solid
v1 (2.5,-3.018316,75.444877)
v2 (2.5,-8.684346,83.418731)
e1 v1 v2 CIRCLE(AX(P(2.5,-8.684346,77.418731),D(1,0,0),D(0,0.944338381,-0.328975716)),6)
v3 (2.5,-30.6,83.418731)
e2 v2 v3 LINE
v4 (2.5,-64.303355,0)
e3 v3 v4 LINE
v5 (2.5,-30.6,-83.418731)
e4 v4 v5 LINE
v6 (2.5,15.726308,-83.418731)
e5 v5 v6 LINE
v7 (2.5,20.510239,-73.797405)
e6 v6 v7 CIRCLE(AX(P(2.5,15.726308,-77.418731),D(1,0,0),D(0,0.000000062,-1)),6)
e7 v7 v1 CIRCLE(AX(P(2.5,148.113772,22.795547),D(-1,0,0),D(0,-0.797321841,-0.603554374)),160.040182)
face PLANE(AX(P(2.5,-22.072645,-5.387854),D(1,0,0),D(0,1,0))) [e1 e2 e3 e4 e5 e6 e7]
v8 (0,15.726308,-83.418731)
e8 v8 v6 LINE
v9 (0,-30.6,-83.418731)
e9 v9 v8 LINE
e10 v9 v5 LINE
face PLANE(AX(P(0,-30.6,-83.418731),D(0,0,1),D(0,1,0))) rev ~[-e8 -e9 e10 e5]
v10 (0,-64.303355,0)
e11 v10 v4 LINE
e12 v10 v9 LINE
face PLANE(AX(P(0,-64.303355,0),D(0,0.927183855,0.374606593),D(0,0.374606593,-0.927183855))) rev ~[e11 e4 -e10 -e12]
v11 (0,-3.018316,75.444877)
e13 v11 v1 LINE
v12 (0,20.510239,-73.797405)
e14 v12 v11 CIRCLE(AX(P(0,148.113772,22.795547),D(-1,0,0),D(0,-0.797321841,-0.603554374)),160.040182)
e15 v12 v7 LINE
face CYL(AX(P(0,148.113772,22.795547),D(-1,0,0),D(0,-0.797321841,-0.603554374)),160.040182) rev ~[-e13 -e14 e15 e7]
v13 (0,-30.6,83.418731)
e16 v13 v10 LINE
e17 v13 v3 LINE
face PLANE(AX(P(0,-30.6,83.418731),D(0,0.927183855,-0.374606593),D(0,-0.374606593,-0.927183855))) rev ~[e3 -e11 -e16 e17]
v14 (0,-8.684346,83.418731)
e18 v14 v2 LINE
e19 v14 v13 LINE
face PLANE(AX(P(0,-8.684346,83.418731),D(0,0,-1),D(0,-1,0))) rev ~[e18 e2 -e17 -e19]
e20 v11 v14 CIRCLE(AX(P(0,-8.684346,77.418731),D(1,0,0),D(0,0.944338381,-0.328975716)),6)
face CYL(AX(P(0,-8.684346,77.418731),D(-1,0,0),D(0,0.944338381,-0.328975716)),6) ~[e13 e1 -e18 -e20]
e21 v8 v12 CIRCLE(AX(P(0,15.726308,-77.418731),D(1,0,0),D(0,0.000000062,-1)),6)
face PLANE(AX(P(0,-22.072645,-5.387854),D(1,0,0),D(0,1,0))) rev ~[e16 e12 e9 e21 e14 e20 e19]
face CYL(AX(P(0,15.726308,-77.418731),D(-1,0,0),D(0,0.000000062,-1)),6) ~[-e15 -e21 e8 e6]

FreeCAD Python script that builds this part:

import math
import FreeCAD as App
import Part
import Sketcher
from FreeCAD import Vector
Q = App.Units.Quantity

doc = App.newDocument("Part")
body = doc.addObject("PartDesign::Body", "Body")

# Sketch on YZ plane
sketch1 = body.newObject("Sketcher::SketchObject", "Sketch")
sketch1.AttachmentSupport = (doc.getObject("YZ_Plane"), [""])
sketch1.MapMode = "FlatFace"
sketch1.addGeometry([
    Part.ArcOfCircle(Part.Circle(Vector(-9, 77, 0), Vector(0, 0, 1), 6), math.radians(-19), math.radians(90)),  # 0
    Part.LineSegment(Vector(-9, 83, 0), Vector(-31, 83, 0)),  # 1
    Part.LineSegment(Vector(-31, 83, 0), Vector(-64, 0, 0)),  # 2
    Part.LineSegment(Vector(-64, 0, 0), Vector(-31, -83, 0)),  # 3
    Part.LineSegment(Vector(-31, -83, 0), Vector(16, -83, 0)),  # 4
    Part.ArcOfCircle(Part.Circle(Vector(16, -77, 0), Vector(0, 0, 1), 6), math.radians(-90), math.radians(37)),  # 5
    Part.ArcOfCircle(Part.Circle(Vector(148, 23, 0), Vector(0, 0, 1), 160), math.radians(161), math.radians(217)),  # 6
], False)
sketch1.addConstraint([
    Sketcher.Constraint("Tangent", 0, 2, 1, 1),
    Sketcher.Constraint("Coincident", 1, 2, 2, 1),
    Sketcher.Constraint("Coincident", 2, 2, 3, 1),
    Sketcher.Constraint("Coincident", 3, 2, 4, 1),
    Sketcher.Constraint("Tangent", 4, 2, 5, 1),
    Sketcher.Constraint("Tangent", 5, 2, 6, 2),
    Sketcher.Constraint("Tangent", 6, 1, 0, 1),
    Sketcher.Constraint("Horizontal", 1),
    Sketcher.Constraint("Horizontal", 4),
    Sketcher.Constraint("Equal", 0, 5),
    Sketcher.Constraint("Symmetric", 1, 2, 3, 2, -1),
    Sketcher.Constraint("PointOnObject", 2, 2, -1),
    Sketcher.Constraint("Radius", 0, Q("6 mm")),
    Sketcher.Constraint("Angle", 2, Q("-112 deg")),
    Sketcher.Constraint("DistanceX", 1, 2, -1, 1, Q("30.6 mm")),
    Sketcher.Constraint("Distance", 2, Q("89.97 mm")),
    Sketcher.Constraint("Radius", 6, Q("160.040182 mm")),
    Sketcher.Constraint("DistanceX", 1, 2, 1, 1, Q("21.915654 mm")),
    Sketcher.Constraint("DistanceX", 4, 1, 4, 2, Q("46.326308 mm")),
])
pad1 = body.newObject("PartDesign::Pad", "Pad")
pad1.Profile = sketch1
pad1.Length = 2.5

doc.recompute()
